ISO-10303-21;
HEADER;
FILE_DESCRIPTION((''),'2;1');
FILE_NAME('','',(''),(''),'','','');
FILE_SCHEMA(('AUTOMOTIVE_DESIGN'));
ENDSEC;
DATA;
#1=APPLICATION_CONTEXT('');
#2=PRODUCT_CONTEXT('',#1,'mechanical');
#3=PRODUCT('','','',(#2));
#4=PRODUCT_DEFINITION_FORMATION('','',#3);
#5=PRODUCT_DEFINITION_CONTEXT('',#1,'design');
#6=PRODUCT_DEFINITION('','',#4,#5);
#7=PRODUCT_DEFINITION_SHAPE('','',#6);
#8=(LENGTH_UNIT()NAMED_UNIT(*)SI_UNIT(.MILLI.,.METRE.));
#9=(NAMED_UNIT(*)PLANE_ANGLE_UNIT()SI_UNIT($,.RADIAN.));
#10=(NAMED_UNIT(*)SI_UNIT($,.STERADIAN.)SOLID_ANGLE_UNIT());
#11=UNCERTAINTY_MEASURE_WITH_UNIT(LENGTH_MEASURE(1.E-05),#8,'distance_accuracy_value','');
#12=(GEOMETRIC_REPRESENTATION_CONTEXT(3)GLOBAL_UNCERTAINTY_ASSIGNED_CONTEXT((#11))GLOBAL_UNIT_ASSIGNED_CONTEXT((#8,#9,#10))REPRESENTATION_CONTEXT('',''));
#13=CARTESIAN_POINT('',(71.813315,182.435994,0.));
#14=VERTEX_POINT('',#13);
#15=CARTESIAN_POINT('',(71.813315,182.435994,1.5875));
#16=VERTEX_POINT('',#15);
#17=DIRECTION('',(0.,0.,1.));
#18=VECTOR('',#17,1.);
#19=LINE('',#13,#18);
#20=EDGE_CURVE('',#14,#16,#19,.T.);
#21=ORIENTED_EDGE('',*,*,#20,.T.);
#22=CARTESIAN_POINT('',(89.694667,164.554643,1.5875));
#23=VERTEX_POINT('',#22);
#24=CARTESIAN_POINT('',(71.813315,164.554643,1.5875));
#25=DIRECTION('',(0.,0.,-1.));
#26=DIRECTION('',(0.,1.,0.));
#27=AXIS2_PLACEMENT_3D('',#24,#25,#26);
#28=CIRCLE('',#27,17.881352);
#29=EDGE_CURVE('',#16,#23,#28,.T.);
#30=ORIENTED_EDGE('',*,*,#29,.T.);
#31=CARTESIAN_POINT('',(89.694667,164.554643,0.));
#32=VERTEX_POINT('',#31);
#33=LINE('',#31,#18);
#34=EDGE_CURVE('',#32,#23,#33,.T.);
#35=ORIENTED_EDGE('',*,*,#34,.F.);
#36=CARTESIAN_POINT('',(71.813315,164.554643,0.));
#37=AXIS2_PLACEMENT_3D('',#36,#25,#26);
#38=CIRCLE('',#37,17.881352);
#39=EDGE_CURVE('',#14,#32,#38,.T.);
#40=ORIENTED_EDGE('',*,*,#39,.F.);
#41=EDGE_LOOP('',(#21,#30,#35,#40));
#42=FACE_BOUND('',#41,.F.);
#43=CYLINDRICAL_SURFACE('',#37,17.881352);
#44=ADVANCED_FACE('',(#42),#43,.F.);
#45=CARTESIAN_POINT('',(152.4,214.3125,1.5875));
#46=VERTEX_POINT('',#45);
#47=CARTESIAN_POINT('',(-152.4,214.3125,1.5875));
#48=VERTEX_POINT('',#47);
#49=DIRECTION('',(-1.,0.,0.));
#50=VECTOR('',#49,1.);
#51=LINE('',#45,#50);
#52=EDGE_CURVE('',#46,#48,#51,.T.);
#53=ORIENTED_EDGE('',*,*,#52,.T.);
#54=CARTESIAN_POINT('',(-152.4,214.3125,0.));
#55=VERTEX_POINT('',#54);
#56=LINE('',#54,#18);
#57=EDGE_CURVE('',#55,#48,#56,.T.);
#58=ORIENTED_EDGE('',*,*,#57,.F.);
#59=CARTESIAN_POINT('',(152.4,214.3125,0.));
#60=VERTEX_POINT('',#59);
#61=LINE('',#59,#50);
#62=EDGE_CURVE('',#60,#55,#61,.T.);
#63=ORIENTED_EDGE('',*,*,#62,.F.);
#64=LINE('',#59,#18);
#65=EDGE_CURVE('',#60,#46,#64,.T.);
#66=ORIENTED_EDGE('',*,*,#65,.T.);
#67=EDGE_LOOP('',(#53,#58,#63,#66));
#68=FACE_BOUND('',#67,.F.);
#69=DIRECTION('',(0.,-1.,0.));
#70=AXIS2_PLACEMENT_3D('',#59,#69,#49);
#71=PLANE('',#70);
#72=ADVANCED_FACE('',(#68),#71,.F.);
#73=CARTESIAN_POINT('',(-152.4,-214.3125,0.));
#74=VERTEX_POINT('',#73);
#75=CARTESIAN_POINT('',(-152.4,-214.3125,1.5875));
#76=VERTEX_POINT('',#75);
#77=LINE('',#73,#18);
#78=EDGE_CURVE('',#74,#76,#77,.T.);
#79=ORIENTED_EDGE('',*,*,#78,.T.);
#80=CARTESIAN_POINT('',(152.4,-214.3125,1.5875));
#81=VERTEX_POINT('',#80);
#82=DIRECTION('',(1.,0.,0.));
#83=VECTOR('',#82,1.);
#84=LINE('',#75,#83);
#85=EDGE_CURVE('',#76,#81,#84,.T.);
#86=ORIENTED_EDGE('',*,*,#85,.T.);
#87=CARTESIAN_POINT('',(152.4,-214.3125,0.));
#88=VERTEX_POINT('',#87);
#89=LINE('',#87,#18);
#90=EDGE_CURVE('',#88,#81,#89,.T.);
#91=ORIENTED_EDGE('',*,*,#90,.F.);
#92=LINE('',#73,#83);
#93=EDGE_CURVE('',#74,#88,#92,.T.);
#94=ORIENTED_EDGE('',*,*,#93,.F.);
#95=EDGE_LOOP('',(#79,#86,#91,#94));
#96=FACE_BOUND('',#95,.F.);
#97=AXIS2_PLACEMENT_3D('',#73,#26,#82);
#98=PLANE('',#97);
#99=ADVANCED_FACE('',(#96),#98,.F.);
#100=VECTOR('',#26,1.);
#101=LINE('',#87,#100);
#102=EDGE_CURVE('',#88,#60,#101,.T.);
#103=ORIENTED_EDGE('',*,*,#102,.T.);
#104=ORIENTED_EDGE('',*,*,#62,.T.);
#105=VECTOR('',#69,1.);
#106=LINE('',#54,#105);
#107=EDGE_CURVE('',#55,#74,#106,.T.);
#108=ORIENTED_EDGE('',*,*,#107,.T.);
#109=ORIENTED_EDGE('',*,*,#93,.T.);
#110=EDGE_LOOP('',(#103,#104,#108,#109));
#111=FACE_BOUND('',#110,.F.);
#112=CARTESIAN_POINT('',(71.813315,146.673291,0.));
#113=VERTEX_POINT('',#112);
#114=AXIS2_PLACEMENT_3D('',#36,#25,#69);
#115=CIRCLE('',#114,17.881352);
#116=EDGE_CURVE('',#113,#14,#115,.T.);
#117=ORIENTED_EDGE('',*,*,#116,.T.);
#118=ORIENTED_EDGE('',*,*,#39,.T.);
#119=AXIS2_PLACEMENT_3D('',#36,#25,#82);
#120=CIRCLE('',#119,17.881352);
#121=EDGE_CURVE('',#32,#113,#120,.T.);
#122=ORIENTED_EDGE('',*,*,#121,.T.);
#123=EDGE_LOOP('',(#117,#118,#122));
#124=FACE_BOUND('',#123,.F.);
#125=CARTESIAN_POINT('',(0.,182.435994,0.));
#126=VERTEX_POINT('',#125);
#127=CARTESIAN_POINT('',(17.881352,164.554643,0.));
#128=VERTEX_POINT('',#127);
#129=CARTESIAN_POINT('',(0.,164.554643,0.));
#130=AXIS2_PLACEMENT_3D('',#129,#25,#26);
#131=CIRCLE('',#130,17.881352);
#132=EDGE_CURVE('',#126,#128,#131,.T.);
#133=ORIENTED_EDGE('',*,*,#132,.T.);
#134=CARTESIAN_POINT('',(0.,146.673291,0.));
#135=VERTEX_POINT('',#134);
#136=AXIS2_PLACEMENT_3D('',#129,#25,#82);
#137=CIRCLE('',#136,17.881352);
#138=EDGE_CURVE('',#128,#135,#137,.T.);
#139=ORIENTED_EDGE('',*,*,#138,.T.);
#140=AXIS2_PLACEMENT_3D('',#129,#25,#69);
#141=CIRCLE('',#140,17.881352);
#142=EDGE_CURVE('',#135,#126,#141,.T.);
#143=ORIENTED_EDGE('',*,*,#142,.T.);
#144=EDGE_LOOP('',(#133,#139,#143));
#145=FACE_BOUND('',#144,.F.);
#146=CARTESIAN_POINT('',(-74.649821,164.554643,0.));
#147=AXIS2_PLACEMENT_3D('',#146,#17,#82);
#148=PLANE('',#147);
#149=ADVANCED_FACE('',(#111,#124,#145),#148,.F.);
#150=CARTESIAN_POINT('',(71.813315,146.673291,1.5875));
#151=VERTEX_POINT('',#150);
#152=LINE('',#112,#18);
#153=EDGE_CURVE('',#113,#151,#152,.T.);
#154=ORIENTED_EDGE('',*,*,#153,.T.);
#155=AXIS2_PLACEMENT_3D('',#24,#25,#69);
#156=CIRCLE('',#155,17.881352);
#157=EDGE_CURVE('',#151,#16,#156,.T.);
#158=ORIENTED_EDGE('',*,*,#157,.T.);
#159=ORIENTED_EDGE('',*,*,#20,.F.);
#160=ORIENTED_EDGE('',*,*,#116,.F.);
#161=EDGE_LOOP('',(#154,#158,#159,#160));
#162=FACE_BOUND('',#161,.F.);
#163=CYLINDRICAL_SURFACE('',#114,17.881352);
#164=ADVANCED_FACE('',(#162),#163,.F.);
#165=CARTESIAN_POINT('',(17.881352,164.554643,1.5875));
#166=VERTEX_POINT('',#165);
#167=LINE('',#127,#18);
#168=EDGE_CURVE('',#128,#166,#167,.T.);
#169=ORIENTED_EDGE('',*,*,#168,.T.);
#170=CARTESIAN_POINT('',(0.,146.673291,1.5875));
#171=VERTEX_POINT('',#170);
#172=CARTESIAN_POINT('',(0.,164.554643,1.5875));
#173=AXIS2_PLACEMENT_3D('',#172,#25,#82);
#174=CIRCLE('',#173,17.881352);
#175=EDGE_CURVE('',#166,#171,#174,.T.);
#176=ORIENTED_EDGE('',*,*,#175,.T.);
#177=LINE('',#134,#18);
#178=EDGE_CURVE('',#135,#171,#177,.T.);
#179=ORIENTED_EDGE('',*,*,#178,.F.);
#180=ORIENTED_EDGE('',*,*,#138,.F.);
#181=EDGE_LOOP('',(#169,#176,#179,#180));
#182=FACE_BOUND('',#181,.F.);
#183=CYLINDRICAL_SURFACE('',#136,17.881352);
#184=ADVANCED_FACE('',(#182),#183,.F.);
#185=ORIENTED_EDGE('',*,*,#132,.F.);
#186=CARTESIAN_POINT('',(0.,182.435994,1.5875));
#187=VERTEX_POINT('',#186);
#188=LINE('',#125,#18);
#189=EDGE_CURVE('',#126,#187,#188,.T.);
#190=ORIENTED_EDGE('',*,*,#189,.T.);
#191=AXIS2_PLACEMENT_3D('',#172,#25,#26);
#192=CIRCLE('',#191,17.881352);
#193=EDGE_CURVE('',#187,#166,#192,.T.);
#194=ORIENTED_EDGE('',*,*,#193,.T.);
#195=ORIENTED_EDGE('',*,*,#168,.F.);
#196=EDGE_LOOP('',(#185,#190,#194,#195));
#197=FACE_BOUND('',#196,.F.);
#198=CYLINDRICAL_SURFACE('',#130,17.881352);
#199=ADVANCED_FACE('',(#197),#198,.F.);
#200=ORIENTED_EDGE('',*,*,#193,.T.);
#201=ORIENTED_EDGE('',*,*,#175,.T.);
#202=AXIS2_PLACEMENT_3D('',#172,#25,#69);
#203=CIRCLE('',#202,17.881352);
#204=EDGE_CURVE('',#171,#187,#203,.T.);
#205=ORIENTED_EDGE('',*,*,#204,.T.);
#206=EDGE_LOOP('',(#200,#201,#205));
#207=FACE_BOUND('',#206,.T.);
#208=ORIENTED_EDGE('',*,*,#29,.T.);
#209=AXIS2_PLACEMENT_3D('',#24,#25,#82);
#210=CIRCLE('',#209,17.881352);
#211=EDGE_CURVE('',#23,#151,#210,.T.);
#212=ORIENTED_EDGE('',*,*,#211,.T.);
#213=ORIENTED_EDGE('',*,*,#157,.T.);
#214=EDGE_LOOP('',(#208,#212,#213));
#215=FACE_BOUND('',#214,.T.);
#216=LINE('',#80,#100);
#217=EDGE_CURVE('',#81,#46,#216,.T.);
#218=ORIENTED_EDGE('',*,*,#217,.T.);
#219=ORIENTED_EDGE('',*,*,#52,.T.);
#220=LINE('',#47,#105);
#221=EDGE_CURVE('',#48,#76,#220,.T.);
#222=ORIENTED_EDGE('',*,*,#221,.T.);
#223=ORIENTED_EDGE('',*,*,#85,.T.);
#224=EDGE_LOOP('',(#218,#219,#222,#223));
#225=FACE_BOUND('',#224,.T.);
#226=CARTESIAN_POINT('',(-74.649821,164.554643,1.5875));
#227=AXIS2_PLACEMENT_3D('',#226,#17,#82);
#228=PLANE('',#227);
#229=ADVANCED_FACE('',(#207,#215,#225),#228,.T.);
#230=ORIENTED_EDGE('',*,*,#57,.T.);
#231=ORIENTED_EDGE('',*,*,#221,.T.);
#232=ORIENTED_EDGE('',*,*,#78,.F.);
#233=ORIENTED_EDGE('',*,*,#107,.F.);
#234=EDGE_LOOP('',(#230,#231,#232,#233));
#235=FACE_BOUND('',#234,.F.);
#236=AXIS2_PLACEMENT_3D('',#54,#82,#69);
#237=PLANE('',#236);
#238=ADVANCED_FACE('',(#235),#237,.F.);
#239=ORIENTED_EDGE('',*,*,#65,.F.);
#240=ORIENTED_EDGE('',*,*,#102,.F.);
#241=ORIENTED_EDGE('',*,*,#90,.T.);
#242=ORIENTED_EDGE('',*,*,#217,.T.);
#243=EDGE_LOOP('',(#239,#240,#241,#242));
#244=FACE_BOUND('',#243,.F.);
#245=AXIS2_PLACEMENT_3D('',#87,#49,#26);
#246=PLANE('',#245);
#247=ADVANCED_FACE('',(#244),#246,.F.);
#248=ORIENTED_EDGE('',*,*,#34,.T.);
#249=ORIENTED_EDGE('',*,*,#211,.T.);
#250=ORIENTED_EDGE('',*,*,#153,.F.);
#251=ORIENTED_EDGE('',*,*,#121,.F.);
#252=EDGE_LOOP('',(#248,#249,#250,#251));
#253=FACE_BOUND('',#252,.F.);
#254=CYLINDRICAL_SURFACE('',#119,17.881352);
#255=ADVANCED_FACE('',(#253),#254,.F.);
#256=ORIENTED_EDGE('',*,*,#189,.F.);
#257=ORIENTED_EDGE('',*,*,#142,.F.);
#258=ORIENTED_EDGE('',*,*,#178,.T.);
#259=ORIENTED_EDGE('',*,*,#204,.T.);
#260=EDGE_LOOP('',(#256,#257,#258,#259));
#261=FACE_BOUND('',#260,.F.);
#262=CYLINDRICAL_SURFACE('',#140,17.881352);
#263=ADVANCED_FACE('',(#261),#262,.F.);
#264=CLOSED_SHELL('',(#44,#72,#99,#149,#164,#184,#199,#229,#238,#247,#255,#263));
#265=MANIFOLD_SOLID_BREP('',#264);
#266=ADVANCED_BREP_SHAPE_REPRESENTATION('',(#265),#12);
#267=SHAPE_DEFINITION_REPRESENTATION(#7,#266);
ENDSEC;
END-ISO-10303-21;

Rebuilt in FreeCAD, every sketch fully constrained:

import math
import FreeCAD as App
import Part
import Sketcher
Q = App.Units.Quantity


def add_polygon(sketch, points):
    """Adds a closed chain of lines whose ends are joined by coincident constraints."""
    first, n = sketch.GeometryCount, len(points)
    for a, b in zip(points, points[1:] + points[:1]):
        sketch.addGeometry(Part.LineSegment(App.Vector(*a, 0), App.Vector(*b, 0)), False)
    for i in range(n):
        sketch.addConstraint(Sketcher.Constraint("Coincident", first + i, 2, first + (i + 1) % n, 1))

doc = App.newDocument("Part")
body = doc.addObject("PartDesign::Body", "Body")

sketch1 = body.newObject("Sketcher::SketchObject", "Sketch")
sketch1.AttachmentSupport = (doc.getObject("XY_Plane"), [""])
sketch1.MapMode = "FlatFace"
add_polygon(sketch1, [(-152, 214), (-152, -214), (152, -214), (152, 214)])
sketch1.addGeometry(Part.ArcOfCircle(Part.Circle(App.Vector(72, 165, 0), App.Vector(0, 0, 1), 18), math.radians(90), math.radians(270)), False)
sketch1.addGeometry(Part.ArcOfCircle(Part.Circle(App.Vector(72, 165, 0), App.Vector(0, 0, 1), 18), math.radians(0), math.radians(90)), False)
sketch1.addGeometry(Part.ArcOfCircle(Part.Circle(App.Vector(72, 165, 0), App.Vector(0, 0, 1), 18), math.radians(-90), math.radians(0)), False)
sketch1.addGeometry(Part.ArcOfCircle(Part.Circle(App.Vector(0, 165, 0), App.Vector(0, 0, 1), 18), math.radians(90), math.radians(270)), False)
sketch1.addGeometry(Part.ArcOfCircle(Part.Circle(App.Vector(0, 165, 0), App.Vector(0, 0, 1), 18), math.radians(0), math.radians(90)), False)
sketch1.addGeometry(Part.ArcOfCircle(Part.Circle(App.Vector(0, 165, 0), App.Vector(0, 0, 1), 18), math.radians(-90), math.radians(0)), False)
sketch1.addConstraint([
    Sketcher.Constraint("Tangent", 4, 1, 5, 2),
    Sketcher.Constraint("Tangent", 5, 1, 6, 2),
    Sketcher.Constraint("Tangent", 6, 1, 4, 2),
    Sketcher.Constraint("Tangent", 7, 1, 8, 2),
    Sketcher.Constraint("Tangent", 8, 1, 9, 2),
    Sketcher.Constraint("Tangent", 9, 1, 7, 2),
    Sketcher.Constraint("Vertical", 0),
    Sketcher.Constraint("Horizontal", 1),
    Sketcher.Constraint("Vertical", 2),
    Sketcher.Constraint("Horizontal", 3),
    Sketcher.Constraint("Equal", 6, 7),
    Sketcher.Constraint("Symmetric", 0, 2, 2, 2, -1, 1),
    Sketcher.Constraint("PointOnObject", 7, 3, -2),
    Sketcher.Constraint("PointOnObject", 7, 1, -2),
    Sketcher.Constraint("PointOnObject", 9, 1, -2),
    Sketcher.Constraint("Horizontal", 6, 3, 7, 3),
    Sketcher.Constraint("Horizontal", 9, 3, 5, 1),
    Sketcher.Constraint("Horizontal", 5, 1, 8, 1),
    Sketcher.Constraint("Vertical", 6, 3, 4, 1),
    Sketcher.Constraint("Vertical", 4, 1, 6, 1),
    Sketcher.Constraint("DistanceX", 1, 1, 1, 2, Q("12 in")),
    Sketcher.Constraint("DistanceY", 0, 2, 0, 1, Q("16.875 in")),
    Sketcher.Constraint("Radius", 4, Q("17.881352 mm")),
    Sketcher.Constraint("DistanceY", -1, 1, 6, 1, Q("146.673291 mm")),
    Sketcher.Constraint("DistanceX", -1, 1, 4, 3, Q("71.813315 mm")),
])
pad1 = body.newObject("PartDesign::Pad", "Pad")
pad1.Profile = sketch1
pad1.Length = Q("0.0625 in")

doc.recompute()
